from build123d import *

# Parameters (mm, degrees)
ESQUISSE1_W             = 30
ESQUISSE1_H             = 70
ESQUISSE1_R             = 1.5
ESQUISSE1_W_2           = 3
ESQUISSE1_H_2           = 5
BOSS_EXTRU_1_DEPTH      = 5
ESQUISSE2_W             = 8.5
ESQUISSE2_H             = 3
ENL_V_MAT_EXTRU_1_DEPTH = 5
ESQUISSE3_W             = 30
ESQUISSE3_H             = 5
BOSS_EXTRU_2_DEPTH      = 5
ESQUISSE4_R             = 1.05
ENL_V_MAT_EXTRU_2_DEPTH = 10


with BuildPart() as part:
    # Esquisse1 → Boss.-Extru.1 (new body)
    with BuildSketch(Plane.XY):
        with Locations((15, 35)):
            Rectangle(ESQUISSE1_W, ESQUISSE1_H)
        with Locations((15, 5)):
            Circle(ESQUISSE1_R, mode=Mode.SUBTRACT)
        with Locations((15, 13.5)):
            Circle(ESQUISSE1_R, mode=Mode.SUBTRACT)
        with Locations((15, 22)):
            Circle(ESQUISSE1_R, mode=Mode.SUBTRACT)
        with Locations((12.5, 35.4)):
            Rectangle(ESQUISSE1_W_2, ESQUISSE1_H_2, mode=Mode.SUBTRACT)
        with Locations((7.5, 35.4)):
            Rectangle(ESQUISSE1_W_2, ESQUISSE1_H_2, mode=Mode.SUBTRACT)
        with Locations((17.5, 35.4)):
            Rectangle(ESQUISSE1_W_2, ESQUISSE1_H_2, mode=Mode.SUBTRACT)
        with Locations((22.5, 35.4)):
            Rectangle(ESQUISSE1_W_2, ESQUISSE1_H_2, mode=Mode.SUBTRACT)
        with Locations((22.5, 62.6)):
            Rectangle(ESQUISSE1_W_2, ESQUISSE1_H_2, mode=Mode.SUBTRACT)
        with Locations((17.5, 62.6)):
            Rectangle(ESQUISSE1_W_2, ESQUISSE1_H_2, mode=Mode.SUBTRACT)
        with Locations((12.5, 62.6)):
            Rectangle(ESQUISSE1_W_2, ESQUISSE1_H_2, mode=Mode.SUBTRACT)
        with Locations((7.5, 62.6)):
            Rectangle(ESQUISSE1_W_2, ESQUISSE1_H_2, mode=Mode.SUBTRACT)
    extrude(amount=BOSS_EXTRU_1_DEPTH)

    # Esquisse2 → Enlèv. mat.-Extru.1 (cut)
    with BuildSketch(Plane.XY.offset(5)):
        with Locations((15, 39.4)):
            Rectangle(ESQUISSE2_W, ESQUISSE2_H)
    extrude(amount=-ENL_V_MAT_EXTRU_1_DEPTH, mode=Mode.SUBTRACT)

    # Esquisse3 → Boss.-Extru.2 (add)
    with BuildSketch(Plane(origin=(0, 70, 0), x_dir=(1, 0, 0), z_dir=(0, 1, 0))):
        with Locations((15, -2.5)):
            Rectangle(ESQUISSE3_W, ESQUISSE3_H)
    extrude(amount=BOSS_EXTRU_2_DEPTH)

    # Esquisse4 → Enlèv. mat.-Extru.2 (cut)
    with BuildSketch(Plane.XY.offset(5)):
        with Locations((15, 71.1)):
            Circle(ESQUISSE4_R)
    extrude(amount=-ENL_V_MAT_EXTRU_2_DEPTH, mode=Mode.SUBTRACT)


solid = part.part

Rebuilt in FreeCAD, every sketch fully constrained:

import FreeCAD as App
import Part
import Sketcher
from FreeCAD import Vector
Q = App.Units.Quantity

doc = App.newDocument("Part")
params = doc.addObject("Spreadsheet::Sheet", "Params")
for row, (alias, value) in enumerate([
    ("sketch1_diameter", "3 mm"),
    ("sketch1_width", "30 mm"),
    ("sketch1_width2", "3 mm"),
    ("sketch1_height", "70 mm"),
    ("sketch1_height2", "5 mm"),
    ("pad1_length", "5 mm"),
    ("sketch2_height", "3 mm"),
    ("sketch2_width", "8.5 mm"),
    ("pocket1_length", "5 mm"),
    ("sketch3_width", "30 mm"),
    ("sketch3_height", "5 mm"),
    ("pad2_length", "5 mm"),
    ("sketch4_diameter", "2.1 mm"),
    ("pocket2_length", "10 mm"),
], start=1):
    params.set(f"A{row}", alias)
    params.set(f"B{row}", "=" + value)
    params.setAlias(f"B{row}", alias)

body = doc.addObject("PartDesign::Body", "Body")

# Sketch on XY plane
sketch1 = body.newObject("Sketcher::SketchObject", "Sketch")
sketch1.AttachmentSupport = (doc.getObject("XY_Plane"), [""])
sketch1.MapMode = "FlatFace"
sketch1.addGeometry([
    Part.LineSegment(Vector(0, 70, 0), Vector(0, 0, 0)),  # 0
    Part.LineSegment(Vector(0, 0, 0), Vector(30, 0, 0)),  # 1
    Part.LineSegment(Vector(30, 0, 0), Vector(30, 70, 0)),  # 2
    Part.LineSegment(Vector(30, 70, 0), Vector(0, 70, 0)),  # 3
    Part.Circle(Vector(15, 5, 0), Vector(0, 0, 1), 1.5),  # 4
    Part.Circle(Vector(15, 13.5, 0), Vector(0, 0, 1), 1.5),  # 5
    Part.Circle(Vector(15, 22, 0), Vector(0, 0, 1), 1.5),  # 6
    Part.LineSegment(Vector(9, 32.9, 0), Vector(6, 32.9, 0)),  # 7
    Part.LineSegment(Vector(6, 32.9, 0), Vector(6, 37.9, 0)),  # 8
    Part.LineSegment(Vector(6, 37.9, 0), Vector(9, 37.9, 0)),  # 9
    Part.LineSegment(Vector(9, 37.9, 0), Vector(9, 32.9, 0)),  # 10
    Part.LineSegment(Vector(14, 32.9, 0), Vector(11, 32.9, 0)),  # 11
    Part.LineSegment(Vector(11, 32.9, 0), Vector(11, 37.9, 0)),  # 12
    Part.LineSegment(Vector(11, 37.9, 0), Vector(14, 37.9, 0)),  # 13
    Part.LineSegment(Vector(14, 37.9, 0), Vector(14, 32.9, 0)),  # 14
    Part.LineSegment(Vector(9, 60.1, 0), Vector(6, 60.1, 0)),  # 15
    Part.LineSegment(Vector(6, 60.1, 0), Vector(6, 65.1, 0)),  # 16
    Part.LineSegment(Vector(6, 65.1, 0), Vector(9, 65.1, 0)),  # 17
    Part.LineSegment(Vector(9, 65.1, 0), Vector(9, 60.1, 0)),  # 18
    Part.LineSegment(Vector(14, 60.1, 0), Vector(11, 60.1, 0)),  # 19
    Part.LineSegment(Vector(11, 60.1, 0), Vector(11, 65.1, 0)),  # 20
    Part.LineSegment(Vector(11, 65.1, 0), Vector(14, 65.1, 0)),  # 21
    Part.LineSegment(Vector(14, 65.1, 0), Vector(14, 60.1, 0)),  # 22
    Part.LineSegment(Vector(19, 32.9, 0), Vector(16, 32.9, 0)),  # 23
    Part.LineSegment(Vector(16, 32.9, 0), Vector(16, 37.9, 0)),  # 24
    Part.LineSegment(Vector(16, 37.9, 0), Vector(19, 37.9, 0)),  # 25
    Part.LineSegment(Vector(19, 37.9, 0), Vector(19, 32.9, 0)),  # 26
    Part.LineSegment(Vector(24, 32.9, 0), Vector(21, 32.9, 0)),  # 27
    Part.LineSegment(Vector(21, 32.9, 0), Vector(21, 37.9, 0)),  # 28
    Part.LineSegment(Vector(21, 37.9, 0), Vector(24, 37.9, 0)),  # 29
    Part.LineSegment(Vector(24, 37.9, 0), Vector(24, 32.9, 0)),  # 30
    Part.LineSegment(Vector(19, 60.1, 0), Vector(16, 60.1, 0)),  # 31
    Part.LineSegment(Vector(16, 60.1, 0), Vector(16, 65.1, 0)),  # 32
    Part.LineSegment(Vector(16, 65.1, 0), Vector(19, 65.1, 0)),  # 33
    Part.LineSegment(Vector(19, 65.1, 0), Vector(19, 60.1, 0)),  # 34
    Part.LineSegment(Vector(24, 60.1, 0), Vector(21, 60.1, 0)),  # 35
    Part.LineSegment(Vector(21, 60.1, 0), Vector(21, 65.1, 0)),  # 36
    Part.LineSegment(Vector(21, 65.1, 0), Vector(24, 65.1, 0)),  # 37
    Part.LineSegment(Vector(24, 65.1, 0), Vector(24, 60.1, 0)),  # 38
], False)
sketch1.addConstraint([
    Sketcher.Constraint("Coincident", 0, 2, 1, 1),
    Sketcher.Constraint("Coincident", 1, 2, 2, 1),
    Sketcher.Constraint("Coincident", 2, 2, 3, 1),
    Sketcher.Constraint("Coincident", 3, 2, 0, 1),
    Sketcher.Constraint("Coincident", 7, 2, 8, 1),
    Sketcher.Constraint("Coincident", 8, 2, 9, 1),
    Sketcher.Constraint("Coincident", 9, 2, 10, 1),
    Sketcher.Constraint("Coincident", 10, 2, 7, 1),
    Sketcher.Constraint("Coincident", 11, 2, 12, 1),
    Sketcher.Constraint("Coincident", 12, 2, 13, 1),
    Sketcher.Constraint("Coincident", 13, 2, 14, 1),
    Sketcher.Constraint("Coincident", 14, 2, 11, 1),
    Sketcher.Constraint("Coincident", 15, 2, 16, 1),
    Sketcher.Constraint("Coincident", 16, 2, 17, 1),
    Sketcher.Constraint("Coincident", 17, 2, 18, 1),
    Sketcher.Constraint("Coincident", 18, 2, 15, 1),
    Sketcher.Constraint("Coincident", 19, 2, 20, 1),
    Sketcher.Constraint("Coincident", 20, 2, 21, 1),
    Sketcher.Constraint("Coincident", 21, 2, 22, 1),
    Sketcher.Constraint("Coincident", 22, 2, 19, 1),
    Sketcher.Constraint("Coincident", 23, 2, 24, 1),
    Sketcher.Constraint("Coincident", 24, 2, 25, 1),
    Sketcher.Constraint("Coincident", 25, 2, 26, 1),
    Sketcher.Constraint("Coincident", 26, 2, 23, 1),
    Sketcher.Constraint("Coincident", 27, 2, 28, 1),
    Sketcher.Constraint("Coincident", 28, 2, 29, 1),
    Sketcher.Constraint("Coincident", 29, 2, 30, 1),
    Sketcher.Constraint("Coincident", 30, 2, 27, 1),
    Sketcher.Constraint("Coincident", 31, 2, 32, 1),
    Sketcher.Constraint("Coincident", 32, 2, 33, 1),
    Sketcher.Constraint("Coincident", 33, 2, 34, 1),
    Sketcher.Constraint("Coincident", 34, 2, 31, 1),
    Sketcher.Constraint("Coincident", 35, 2, 36, 1),
    Sketcher.Constraint("Coincident", 36, 2, 37, 1),
    Sketcher.Constraint("Coincident", 37, 2, 38, 1),
    Sketcher.Constraint("Coincident", 38, 2, 35, 1),
    Sketcher.Constraint("Vertical", 0),
    Sketcher.Constraint("Horizontal", 1),
    Sketcher.Constraint("Vertical", 2),
    Sketcher.Constraint("Horizontal", 3),
    Sketcher.Constraint("Horizontal", 7),
    Sketcher.Constraint("Vertical", 8),
    Sketcher.Constraint("Horizontal", 9),
    Sketcher.Constraint("Vertical", 10),
    Sketcher.Constraint("Horizontal", 11),
    Sketcher.Constraint("Vertical", 12),
    Sketcher.Constraint("Horizontal", 13),
    Sketcher.Constraint("Vertical", 14),
    Sketcher.Constraint("Horizontal", 15),
    Sketcher.Constraint("Vertical", 16),
    Sketcher.Constraint("Horizontal", 17),
    Sketcher.Constraint("Vertical", 18),
    Sketcher.Constraint("Horizontal", 19),
    Sketcher.Constraint("Vertical", 20),
    Sketcher.Constraint("Horizontal", 21),
    Sketcher.Constraint("Vertical", 22),
    Sketcher.Constraint("Horizontal", 23),
    Sketcher.Constraint("Vertical", 24),
    Sketcher.Constraint("Horizontal", 25),
    Sketcher.Constraint("Vertical", 26),
    Sketcher.Constraint("Horizontal", 27),
    Sketcher.Constraint("Vertical", 28),
    Sketcher.Constraint("Horizontal", 29),
    Sketcher.Constraint("Vertical", 30),
    Sketcher.Constraint("Horizontal", 31),
    Sketcher.Constraint("Vertical", 32),
    Sketcher.Constraint("Horizontal", 33),
    Sketcher.Constraint("Vertical", 34),
    Sketcher.Constraint("Horizontal", 35),
    Sketcher.Constraint("Vertical", 36),
    Sketcher.Constraint("Horizontal", 37),
    Sketcher.Constraint("Vertical", 38),
    Sketcher.Constraint("Coincident", 0, 2, -1, 1),
    Sketcher.Constraint("Equal", 4, 5),
    Sketcher.Constraint("Equal", 5, 6),
    Sketcher.Constraint("Horizontal", 10, 2, 11, 2),
    Sketcher.Constraint("Horizontal", 9, 2, 12, 2),
    Sketcher.Constraint("Horizontal", 18, 2, 19, 2),
    Sketcher.Constraint("Horizontal", 17, 2, 20, 2),
    Sketcher.Constraint("Horizontal", 14, 2, 23, 2),
    Sketcher.Constraint("Horizontal", 13, 2, 24, 2),
    Sketcher.Constraint("Horizontal", 26, 2, 27, 2),
    Sketcher.Constraint("Horizontal", 25, 2, 28, 2),
    Sketcher.Constraint("Horizontal", 22, 2, 31, 2),
    Sketcher.Constraint("Horizontal", 21, 2, 32, 2),
    Sketcher.Constraint("Horizontal", 34, 2, 35, 2),
    Sketcher.Constraint("Horizontal", 33, 2, 36, 2),
    Sketcher.Constraint("Vertical", 4, 3, 5, 3),
    Sketcher.Constraint("Vertical", 5, 3, 6, 3),
    Sketcher.Constraint("Vertical", 8, 2, 15, 2),
    Sketcher.Constraint("Vertical", 10, 2, 17, 2),
    Sketcher.Constraint("Vertical", 12, 2, 19, 2),
    Sketcher.Constraint("Vertical", 14, 2, 21, 2),
    Sketcher.Constraint("Vertical", 24, 2, 31, 2),
    Sketcher.Constraint("Vertical", 26, 2, 33, 2),
    Sketcher.Constraint("Vertical", 28, 2, 35, 2),
    Sketcher.Constraint("Vertical", 30, 2, 37, 2),
    Sketcher.Constraint("Equal", 9, 11),
    Sketcher.Constraint("Equal", 21, 23),
    Sketcher.Constraint("Equal", 25, 27),
    Sketcher.Constraint("Equal", 14, 16),
    Sketcher.Constraint("Diameter", 4, Q("3 mm")),
    Sketcher.Constraint("DistanceX", 1, 1, 1, 2, Q("30 mm")),
    Sketcher.Constraint("DistanceX", 7, 2, 7, 1, Q("3 mm")),
    Sketcher.Constraint("DistanceY", 0, 2, 0, 1, Q("70 mm")),
    Sketcher.Constraint("DistanceY", 8, 1, 8, 2, Q("5 mm")),
    Sketcher.Constraint("DistanceX", -1, 1, 4, 3, Q("15 mm")),
    Sketcher.Constraint("DistanceY", -1, 1, 4, 3, Q("5 mm")),
    Sketcher.Constraint("DistanceY", -1, 1, 6, 3, Q("22 mm")),
    Sketcher.Constraint("DistanceX", -1, 1, 7, 2, Q("6 mm")),
    Sketcher.Constraint("DistanceX", -1, 1, 11, 2, Q("11 mm")),
    Sketcher.Constraint("DistanceX", -1, 1, 23, 2, Q("16 mm")),
    Sketcher.Constraint("DistanceX", -1, 1, 27, 2, Q("21 mm")),
    Sketcher.Constraint("DistanceY", -1, 1, 5, 3, Q("13.5 mm")),
    Sketcher.Constraint("DistanceY", -1, 1, 7, 2, Q("32.9 mm")),
    Sketcher.Constraint("DistanceY", -1, 1, 15, 2, Q("60.1 mm")),
])
sketch1.setExpression("Constraints[101]", "Params.sketch1_diameter")
sketch1.setExpression("Constraints[102]", "Params.sketch1_width")
sketch1.setExpression("Constraints[103]", "Params.sketch1_width2")
sketch1.setExpression("Constraints[104]", "Params.sketch1_height")
sketch1.setExpression("Constraints[105]", "Params.sketch1_height2")
pad1 = body.newObject("PartDesign::Pad", "Pad")
pad1.Profile = sketch1
pad1.setExpression("Length", "Params.pad1_length")

# Sketch on XY plane
sketch2 = body.newObject("Sketcher::SketchObject", "Sketch001")
sketch2.AttachmentSupport = (doc.getObject("XY_Plane"), [""])
sketch2.MapMode = "FlatFace"
sketch2.AttachmentOffset = App.Placement(Vector(0, 0, 5), App.Rotation())
sketch2.addGeometry([
    Part.LineSegment(Vector(10.8, 40.9, 0), Vector(10.8, 37.9, 0)),
    Part.LineSegment(Vector(10.8, 37.9, 0), Vector(19.2, 37.9, 0)),
    Part.LineSegment(Vector(19.2, 37.9, 0), Vector(19.2, 40.9, 0)),
    Part.LineSegment(Vector(19.2, 40.9, 0), Vector(10.8, 40.9, 0)),
], False)
sketch2.addConstraint([
    Sketcher.Constraint("Coincident", 0, 2, 1, 1),
    Sketcher.Constraint("Coincident", 1, 2, 2, 1),
    Sketcher.Constraint("Coincident", 2, 2, 3, 1),
    Sketcher.Constraint("Coincident", 3, 2, 0, 1),
    Sketcher.Constraint("Vertical", 0),
    Sketcher.Constraint("Horizontal", 1),
    Sketcher.Constraint("Vertical", 2),
    Sketcher.Constraint("Horizontal", 3),
    Sketcher.Constraint("DistanceY", 0, 2, 0, 1, Q("3 mm")),
    Sketcher.Constraint("DistanceX", 1, 1, 1, 2, Q("8.5 mm")),
    Sketcher.Constraint("DistanceY", -1, 1, 0, 2, Q("37.9 mm")),
    Sketcher.Constraint("DistanceX", -1, 1, 0, 2, Q("10.75 mm")),
])
sketch2.setExpression("Constraints[8]", "Params.sketch2_height")
sketch2.setExpression("Constraints[9]", "Params.sketch2_width")
pocket1 = body.newObject("PartDesign::Pocket", "Pocket")
pocket1.Profile = sketch2
pocket1.setExpression("Length", "Params.pocket1_length")

# Sketch on XZ plane
sketch3 = body.newObject("Sketcher::SketchObject", "Sketch002")
sketch3.AttachmentSupport = (doc.getObject("XZ_Plane"), [""])
sketch3.MapMode = "FlatFace"
sketch3.AttachmentOffset = App.Placement(Vector(0, 0, -70), App.Rotation())
sketch3.addGeometry([
    Part.LineSegment(Vector(0, 0, 0), Vector(0, 5, 0)),
    Part.LineSegment(Vector(0, 5, 0), Vector(30, 5, 0)),
    Part.LineSegment(Vector(30, 5, 0), Vector(30, 0, 0)),
    Part.LineSegment(Vector(30, 0, 0), Vector(0, 0, 0)),
], False)
sketch3.addConstraint([
    Sketcher.Constraint("Coincident", 0, 2, 1, 1),
    Sketcher.Constraint("Coincident", 1, 2, 2, 1),
    Sketcher.Constraint("Coincident", 2, 2, 3, 1),
    Sketcher.Constraint("Coincident", 3, 2, 0, 1),
    Sketcher.Constraint("Vertical", 0),
    Sketcher.Constraint("Horizontal", 1),
    Sketcher.Constraint("Vertical", 2),
    Sketcher.Constraint("Horizontal", 3),
    Sketcher.Constraint("Coincident", 3, 2, -1, 1),
    Sketcher.Constraint("DistanceX", 1, 1, 1, 2, Q("30 mm")),
    Sketcher.Constraint("DistanceY", 0, 1, 0, 2, Q("5 mm")),
])
sketch3.setExpression("Constraints[9]", "Params.sketch3_width")
sketch3.setExpression("Constraints[10]", "Params.sketch3_height")
pad2 = body.newObject("PartDesign::Pad", "Pad001")
pad2.Profile = sketch3
pad2.setExpression("Length", "Params.pad2_length")
pad2.Reversed = True

# Sketch on XY plane
sketch4 = body.newObject("Sketcher::SketchObject", "Sketch003")
sketch4.AttachmentSupport = (doc.getObject("XY_Plane"), [""])
sketch4.MapMode = "FlatFace"
sketch4.AttachmentOffset = App.Placement(Vector(0, 0, 5), App.Rotation())
sketch4.addGeometry(Part.Circle(Vector(15, 71.1, 0), Vector(0, 0, 1), 1.1), False)
sketch4.addConstraint([
    Sketcher.Constraint("Diameter", 0, Q("2.1 mm")),
    Sketcher.Constraint("DistanceX", -1, 1, 0, 3, Q("15 mm")),
    Sketcher.Constraint("DistanceY", -1, 1, 0, 3, Q("71.1 mm")),
])
sketch4.setExpression("Constraints[0]", "Params.sketch4_diameter")
pocket2 = body.newObject("PartDesign::Pocket", "Pocket001")
pocket2.Profile = sketch4
pocket2.setExpression("Length", "Params.pocket2_length")

doc.recompute()
